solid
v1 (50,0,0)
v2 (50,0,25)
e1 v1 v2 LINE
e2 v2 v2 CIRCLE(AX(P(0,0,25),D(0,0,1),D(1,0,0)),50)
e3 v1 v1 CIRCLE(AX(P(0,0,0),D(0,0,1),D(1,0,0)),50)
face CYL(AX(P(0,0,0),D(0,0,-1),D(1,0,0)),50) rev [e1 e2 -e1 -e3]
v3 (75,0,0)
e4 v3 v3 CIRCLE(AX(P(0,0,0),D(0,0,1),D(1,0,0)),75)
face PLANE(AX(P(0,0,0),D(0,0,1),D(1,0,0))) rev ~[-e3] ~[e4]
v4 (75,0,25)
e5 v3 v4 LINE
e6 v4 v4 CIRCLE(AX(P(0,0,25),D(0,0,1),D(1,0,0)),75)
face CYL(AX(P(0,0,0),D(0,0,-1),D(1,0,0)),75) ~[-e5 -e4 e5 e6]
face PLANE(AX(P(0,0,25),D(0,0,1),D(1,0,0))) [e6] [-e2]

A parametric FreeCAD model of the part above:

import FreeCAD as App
import Part
import Sketcher

doc = App.newDocument("Part")
body = doc.addObject("PartDesign::Body", "Body")

sketch1 = doc.addObject("Sketcher::SketchObject", "Sketch")
body.addObject(sketch1)
sketch1.AttachmentSupport = (doc.XY_Plane, [""])
sketch1.MapMode = "FlatFace"
sketch1.addGeometry(Part.Circle(App.Vector(0, 0, 0), App.Vector(0, 0, 1), 75), False)
sketch1.addGeometry(Part.Circle(App.Vector(0, 0, 0), App.Vector(0, 0, 1), 50), False)
sketch1.addConstraint(Sketcher.Constraint("Coincident", 0, 3, -1, 1))
sketch1.addConstraint(Sketcher.Constraint("Coincident", 1, 3, -1, 1))
sketch1.addConstraint(Sketcher.Constraint("Diameter", 0, 150.0))
sketch1.addConstraint(Sketcher.Constraint("Diameter", 1, 100.0))
pad1 = doc.addObject("PartDesign::Pad", "Pad")
body.addObject(pad1)
pad1.Profile = sketch1
pad1.Length = 25

doc.recompute()
